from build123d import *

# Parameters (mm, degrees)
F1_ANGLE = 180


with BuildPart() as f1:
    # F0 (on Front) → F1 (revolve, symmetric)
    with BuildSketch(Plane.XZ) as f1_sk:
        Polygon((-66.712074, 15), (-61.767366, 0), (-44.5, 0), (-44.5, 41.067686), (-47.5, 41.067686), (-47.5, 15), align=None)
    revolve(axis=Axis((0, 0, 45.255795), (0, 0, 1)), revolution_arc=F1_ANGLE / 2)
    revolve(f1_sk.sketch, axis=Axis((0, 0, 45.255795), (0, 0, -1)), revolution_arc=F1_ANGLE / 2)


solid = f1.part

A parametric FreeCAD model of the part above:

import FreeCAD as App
import Part
import Sketcher

V = App.Vector


def add_polygon(sketch, points):
    """Adds a closed chain of lines whose ends are joined by coincident constraints."""
    first, n = sketch.GeometryCount, len(points)
    for a, b in zip(points, points[1:] + points[:1]):
        sketch.addGeometry(Part.LineSegment(App.Vector(*a, 0), App.Vector(*b, 0)), False)
    for i in range(n):
        sketch.addConstraint(Sketcher.Constraint("Coincident", first + i, 2, first + (i + 1) % n, 1))

doc = App.newDocument("Part")
body = doc.addObject("PartDesign::Body", "Body")

# Sketch on XZ plane
sketch1 = body.newObject("Sketcher::SketchObject", "Sketch")
sketch1.AttachmentSupport = (doc.getObject("XZ_Plane"), [""])
sketch1.MapMode = "FlatFace"
add_polygon(sketch1, [(-66.7, 15), (-61.8, 0), (-44.5, 0), (-44.5, 41.1), (-47.5, 41.1), (-47.5, 15)])  # lines 0-5
sketch1.addConstraint([
    Sketcher.Constraint("Horizontal", 1),
    Sketcher.Constraint("Vertical", 2),
    Sketcher.Constraint("Horizontal", 3),
    Sketcher.Constraint("Vertical", 4),
    Sketcher.Constraint("Horizontal", 5),
    Sketcher.Constraint("PointOnObject", 0, 2, -1),
    Sketcher.Constraint("DistanceX", 3, 2, 3, 1, 3.0),
    Sketcher.Constraint("DistanceY", -1, 1, 4, 2, 15.0),
    Sketcher.Constraint("DistanceX", 1, 2, -1, 1, 44.5),
    Sketcher.Constraint("Distance", 0, 15.793991),
    Sketcher.Constraint("DistanceX", 1, 1, 1, 2, 17.267366),
    Sketcher.Constraint("DistanceY", 2, 1, 2, 2, 41.067686),
])
revolution = body.newObject("PartDesign::Revolution", "Revolution")
revolution.Profile = sketch1
revolution.ReferenceAxis = (sketch1, ["V_Axis"])
revolution.Angle = 90

# Sketch on XZ plane
sketch2 = body.newObject("Sketcher::SketchObject", "Sketch001")
sketch2.AttachmentSupport = (doc.getObject("XZ_Plane"), [""])
sketch2.MapMode = "FlatFace"
add_polygon(sketch2, [(-66.7, 15), (-61.8, 0), (-44.5, 0), (-44.5, 41.1), (-47.5, 41.1), (-47.5, 15)])  # lines 0-5
sketch2.addConstraint([
    Sketcher.Constraint("Horizontal", 1),
    Sketcher.Constraint("Vertical", 2),
    Sketcher.Constraint("Horizontal", 3),
    Sketcher.Constraint("Vertical", 4),
    Sketcher.Constraint("Horizontal", 5),
    Sketcher.Constraint("PointOnObject", 0, 2, -1),
    Sketcher.Constraint("DistanceX", 3, 2, 3, 1, 3.0),
    Sketcher.Constraint("DistanceY", -1, 1, 4, 2, 15.0),
    Sketcher.Constraint("DistanceX", 1, 2, -1, 1, 44.5),
    Sketcher.Constraint("Distance", 0, 15.793991),
    Sketcher.Constraint("DistanceX", 1, 1, 1, 2, 17.267366),
    Sketcher.Constraint("DistanceY", 2, 1, 2, 2, 41.067686),
])
revolution2 = body.newObject("PartDesign::Revolution", "Revolution001")
revolution2.Profile = sketch2
revolution2.ReferenceAxis = (sketch2, ["V_Axis"])
revolution2.Angle = 90
revolution2.Reversed = True

doc.recompute()
